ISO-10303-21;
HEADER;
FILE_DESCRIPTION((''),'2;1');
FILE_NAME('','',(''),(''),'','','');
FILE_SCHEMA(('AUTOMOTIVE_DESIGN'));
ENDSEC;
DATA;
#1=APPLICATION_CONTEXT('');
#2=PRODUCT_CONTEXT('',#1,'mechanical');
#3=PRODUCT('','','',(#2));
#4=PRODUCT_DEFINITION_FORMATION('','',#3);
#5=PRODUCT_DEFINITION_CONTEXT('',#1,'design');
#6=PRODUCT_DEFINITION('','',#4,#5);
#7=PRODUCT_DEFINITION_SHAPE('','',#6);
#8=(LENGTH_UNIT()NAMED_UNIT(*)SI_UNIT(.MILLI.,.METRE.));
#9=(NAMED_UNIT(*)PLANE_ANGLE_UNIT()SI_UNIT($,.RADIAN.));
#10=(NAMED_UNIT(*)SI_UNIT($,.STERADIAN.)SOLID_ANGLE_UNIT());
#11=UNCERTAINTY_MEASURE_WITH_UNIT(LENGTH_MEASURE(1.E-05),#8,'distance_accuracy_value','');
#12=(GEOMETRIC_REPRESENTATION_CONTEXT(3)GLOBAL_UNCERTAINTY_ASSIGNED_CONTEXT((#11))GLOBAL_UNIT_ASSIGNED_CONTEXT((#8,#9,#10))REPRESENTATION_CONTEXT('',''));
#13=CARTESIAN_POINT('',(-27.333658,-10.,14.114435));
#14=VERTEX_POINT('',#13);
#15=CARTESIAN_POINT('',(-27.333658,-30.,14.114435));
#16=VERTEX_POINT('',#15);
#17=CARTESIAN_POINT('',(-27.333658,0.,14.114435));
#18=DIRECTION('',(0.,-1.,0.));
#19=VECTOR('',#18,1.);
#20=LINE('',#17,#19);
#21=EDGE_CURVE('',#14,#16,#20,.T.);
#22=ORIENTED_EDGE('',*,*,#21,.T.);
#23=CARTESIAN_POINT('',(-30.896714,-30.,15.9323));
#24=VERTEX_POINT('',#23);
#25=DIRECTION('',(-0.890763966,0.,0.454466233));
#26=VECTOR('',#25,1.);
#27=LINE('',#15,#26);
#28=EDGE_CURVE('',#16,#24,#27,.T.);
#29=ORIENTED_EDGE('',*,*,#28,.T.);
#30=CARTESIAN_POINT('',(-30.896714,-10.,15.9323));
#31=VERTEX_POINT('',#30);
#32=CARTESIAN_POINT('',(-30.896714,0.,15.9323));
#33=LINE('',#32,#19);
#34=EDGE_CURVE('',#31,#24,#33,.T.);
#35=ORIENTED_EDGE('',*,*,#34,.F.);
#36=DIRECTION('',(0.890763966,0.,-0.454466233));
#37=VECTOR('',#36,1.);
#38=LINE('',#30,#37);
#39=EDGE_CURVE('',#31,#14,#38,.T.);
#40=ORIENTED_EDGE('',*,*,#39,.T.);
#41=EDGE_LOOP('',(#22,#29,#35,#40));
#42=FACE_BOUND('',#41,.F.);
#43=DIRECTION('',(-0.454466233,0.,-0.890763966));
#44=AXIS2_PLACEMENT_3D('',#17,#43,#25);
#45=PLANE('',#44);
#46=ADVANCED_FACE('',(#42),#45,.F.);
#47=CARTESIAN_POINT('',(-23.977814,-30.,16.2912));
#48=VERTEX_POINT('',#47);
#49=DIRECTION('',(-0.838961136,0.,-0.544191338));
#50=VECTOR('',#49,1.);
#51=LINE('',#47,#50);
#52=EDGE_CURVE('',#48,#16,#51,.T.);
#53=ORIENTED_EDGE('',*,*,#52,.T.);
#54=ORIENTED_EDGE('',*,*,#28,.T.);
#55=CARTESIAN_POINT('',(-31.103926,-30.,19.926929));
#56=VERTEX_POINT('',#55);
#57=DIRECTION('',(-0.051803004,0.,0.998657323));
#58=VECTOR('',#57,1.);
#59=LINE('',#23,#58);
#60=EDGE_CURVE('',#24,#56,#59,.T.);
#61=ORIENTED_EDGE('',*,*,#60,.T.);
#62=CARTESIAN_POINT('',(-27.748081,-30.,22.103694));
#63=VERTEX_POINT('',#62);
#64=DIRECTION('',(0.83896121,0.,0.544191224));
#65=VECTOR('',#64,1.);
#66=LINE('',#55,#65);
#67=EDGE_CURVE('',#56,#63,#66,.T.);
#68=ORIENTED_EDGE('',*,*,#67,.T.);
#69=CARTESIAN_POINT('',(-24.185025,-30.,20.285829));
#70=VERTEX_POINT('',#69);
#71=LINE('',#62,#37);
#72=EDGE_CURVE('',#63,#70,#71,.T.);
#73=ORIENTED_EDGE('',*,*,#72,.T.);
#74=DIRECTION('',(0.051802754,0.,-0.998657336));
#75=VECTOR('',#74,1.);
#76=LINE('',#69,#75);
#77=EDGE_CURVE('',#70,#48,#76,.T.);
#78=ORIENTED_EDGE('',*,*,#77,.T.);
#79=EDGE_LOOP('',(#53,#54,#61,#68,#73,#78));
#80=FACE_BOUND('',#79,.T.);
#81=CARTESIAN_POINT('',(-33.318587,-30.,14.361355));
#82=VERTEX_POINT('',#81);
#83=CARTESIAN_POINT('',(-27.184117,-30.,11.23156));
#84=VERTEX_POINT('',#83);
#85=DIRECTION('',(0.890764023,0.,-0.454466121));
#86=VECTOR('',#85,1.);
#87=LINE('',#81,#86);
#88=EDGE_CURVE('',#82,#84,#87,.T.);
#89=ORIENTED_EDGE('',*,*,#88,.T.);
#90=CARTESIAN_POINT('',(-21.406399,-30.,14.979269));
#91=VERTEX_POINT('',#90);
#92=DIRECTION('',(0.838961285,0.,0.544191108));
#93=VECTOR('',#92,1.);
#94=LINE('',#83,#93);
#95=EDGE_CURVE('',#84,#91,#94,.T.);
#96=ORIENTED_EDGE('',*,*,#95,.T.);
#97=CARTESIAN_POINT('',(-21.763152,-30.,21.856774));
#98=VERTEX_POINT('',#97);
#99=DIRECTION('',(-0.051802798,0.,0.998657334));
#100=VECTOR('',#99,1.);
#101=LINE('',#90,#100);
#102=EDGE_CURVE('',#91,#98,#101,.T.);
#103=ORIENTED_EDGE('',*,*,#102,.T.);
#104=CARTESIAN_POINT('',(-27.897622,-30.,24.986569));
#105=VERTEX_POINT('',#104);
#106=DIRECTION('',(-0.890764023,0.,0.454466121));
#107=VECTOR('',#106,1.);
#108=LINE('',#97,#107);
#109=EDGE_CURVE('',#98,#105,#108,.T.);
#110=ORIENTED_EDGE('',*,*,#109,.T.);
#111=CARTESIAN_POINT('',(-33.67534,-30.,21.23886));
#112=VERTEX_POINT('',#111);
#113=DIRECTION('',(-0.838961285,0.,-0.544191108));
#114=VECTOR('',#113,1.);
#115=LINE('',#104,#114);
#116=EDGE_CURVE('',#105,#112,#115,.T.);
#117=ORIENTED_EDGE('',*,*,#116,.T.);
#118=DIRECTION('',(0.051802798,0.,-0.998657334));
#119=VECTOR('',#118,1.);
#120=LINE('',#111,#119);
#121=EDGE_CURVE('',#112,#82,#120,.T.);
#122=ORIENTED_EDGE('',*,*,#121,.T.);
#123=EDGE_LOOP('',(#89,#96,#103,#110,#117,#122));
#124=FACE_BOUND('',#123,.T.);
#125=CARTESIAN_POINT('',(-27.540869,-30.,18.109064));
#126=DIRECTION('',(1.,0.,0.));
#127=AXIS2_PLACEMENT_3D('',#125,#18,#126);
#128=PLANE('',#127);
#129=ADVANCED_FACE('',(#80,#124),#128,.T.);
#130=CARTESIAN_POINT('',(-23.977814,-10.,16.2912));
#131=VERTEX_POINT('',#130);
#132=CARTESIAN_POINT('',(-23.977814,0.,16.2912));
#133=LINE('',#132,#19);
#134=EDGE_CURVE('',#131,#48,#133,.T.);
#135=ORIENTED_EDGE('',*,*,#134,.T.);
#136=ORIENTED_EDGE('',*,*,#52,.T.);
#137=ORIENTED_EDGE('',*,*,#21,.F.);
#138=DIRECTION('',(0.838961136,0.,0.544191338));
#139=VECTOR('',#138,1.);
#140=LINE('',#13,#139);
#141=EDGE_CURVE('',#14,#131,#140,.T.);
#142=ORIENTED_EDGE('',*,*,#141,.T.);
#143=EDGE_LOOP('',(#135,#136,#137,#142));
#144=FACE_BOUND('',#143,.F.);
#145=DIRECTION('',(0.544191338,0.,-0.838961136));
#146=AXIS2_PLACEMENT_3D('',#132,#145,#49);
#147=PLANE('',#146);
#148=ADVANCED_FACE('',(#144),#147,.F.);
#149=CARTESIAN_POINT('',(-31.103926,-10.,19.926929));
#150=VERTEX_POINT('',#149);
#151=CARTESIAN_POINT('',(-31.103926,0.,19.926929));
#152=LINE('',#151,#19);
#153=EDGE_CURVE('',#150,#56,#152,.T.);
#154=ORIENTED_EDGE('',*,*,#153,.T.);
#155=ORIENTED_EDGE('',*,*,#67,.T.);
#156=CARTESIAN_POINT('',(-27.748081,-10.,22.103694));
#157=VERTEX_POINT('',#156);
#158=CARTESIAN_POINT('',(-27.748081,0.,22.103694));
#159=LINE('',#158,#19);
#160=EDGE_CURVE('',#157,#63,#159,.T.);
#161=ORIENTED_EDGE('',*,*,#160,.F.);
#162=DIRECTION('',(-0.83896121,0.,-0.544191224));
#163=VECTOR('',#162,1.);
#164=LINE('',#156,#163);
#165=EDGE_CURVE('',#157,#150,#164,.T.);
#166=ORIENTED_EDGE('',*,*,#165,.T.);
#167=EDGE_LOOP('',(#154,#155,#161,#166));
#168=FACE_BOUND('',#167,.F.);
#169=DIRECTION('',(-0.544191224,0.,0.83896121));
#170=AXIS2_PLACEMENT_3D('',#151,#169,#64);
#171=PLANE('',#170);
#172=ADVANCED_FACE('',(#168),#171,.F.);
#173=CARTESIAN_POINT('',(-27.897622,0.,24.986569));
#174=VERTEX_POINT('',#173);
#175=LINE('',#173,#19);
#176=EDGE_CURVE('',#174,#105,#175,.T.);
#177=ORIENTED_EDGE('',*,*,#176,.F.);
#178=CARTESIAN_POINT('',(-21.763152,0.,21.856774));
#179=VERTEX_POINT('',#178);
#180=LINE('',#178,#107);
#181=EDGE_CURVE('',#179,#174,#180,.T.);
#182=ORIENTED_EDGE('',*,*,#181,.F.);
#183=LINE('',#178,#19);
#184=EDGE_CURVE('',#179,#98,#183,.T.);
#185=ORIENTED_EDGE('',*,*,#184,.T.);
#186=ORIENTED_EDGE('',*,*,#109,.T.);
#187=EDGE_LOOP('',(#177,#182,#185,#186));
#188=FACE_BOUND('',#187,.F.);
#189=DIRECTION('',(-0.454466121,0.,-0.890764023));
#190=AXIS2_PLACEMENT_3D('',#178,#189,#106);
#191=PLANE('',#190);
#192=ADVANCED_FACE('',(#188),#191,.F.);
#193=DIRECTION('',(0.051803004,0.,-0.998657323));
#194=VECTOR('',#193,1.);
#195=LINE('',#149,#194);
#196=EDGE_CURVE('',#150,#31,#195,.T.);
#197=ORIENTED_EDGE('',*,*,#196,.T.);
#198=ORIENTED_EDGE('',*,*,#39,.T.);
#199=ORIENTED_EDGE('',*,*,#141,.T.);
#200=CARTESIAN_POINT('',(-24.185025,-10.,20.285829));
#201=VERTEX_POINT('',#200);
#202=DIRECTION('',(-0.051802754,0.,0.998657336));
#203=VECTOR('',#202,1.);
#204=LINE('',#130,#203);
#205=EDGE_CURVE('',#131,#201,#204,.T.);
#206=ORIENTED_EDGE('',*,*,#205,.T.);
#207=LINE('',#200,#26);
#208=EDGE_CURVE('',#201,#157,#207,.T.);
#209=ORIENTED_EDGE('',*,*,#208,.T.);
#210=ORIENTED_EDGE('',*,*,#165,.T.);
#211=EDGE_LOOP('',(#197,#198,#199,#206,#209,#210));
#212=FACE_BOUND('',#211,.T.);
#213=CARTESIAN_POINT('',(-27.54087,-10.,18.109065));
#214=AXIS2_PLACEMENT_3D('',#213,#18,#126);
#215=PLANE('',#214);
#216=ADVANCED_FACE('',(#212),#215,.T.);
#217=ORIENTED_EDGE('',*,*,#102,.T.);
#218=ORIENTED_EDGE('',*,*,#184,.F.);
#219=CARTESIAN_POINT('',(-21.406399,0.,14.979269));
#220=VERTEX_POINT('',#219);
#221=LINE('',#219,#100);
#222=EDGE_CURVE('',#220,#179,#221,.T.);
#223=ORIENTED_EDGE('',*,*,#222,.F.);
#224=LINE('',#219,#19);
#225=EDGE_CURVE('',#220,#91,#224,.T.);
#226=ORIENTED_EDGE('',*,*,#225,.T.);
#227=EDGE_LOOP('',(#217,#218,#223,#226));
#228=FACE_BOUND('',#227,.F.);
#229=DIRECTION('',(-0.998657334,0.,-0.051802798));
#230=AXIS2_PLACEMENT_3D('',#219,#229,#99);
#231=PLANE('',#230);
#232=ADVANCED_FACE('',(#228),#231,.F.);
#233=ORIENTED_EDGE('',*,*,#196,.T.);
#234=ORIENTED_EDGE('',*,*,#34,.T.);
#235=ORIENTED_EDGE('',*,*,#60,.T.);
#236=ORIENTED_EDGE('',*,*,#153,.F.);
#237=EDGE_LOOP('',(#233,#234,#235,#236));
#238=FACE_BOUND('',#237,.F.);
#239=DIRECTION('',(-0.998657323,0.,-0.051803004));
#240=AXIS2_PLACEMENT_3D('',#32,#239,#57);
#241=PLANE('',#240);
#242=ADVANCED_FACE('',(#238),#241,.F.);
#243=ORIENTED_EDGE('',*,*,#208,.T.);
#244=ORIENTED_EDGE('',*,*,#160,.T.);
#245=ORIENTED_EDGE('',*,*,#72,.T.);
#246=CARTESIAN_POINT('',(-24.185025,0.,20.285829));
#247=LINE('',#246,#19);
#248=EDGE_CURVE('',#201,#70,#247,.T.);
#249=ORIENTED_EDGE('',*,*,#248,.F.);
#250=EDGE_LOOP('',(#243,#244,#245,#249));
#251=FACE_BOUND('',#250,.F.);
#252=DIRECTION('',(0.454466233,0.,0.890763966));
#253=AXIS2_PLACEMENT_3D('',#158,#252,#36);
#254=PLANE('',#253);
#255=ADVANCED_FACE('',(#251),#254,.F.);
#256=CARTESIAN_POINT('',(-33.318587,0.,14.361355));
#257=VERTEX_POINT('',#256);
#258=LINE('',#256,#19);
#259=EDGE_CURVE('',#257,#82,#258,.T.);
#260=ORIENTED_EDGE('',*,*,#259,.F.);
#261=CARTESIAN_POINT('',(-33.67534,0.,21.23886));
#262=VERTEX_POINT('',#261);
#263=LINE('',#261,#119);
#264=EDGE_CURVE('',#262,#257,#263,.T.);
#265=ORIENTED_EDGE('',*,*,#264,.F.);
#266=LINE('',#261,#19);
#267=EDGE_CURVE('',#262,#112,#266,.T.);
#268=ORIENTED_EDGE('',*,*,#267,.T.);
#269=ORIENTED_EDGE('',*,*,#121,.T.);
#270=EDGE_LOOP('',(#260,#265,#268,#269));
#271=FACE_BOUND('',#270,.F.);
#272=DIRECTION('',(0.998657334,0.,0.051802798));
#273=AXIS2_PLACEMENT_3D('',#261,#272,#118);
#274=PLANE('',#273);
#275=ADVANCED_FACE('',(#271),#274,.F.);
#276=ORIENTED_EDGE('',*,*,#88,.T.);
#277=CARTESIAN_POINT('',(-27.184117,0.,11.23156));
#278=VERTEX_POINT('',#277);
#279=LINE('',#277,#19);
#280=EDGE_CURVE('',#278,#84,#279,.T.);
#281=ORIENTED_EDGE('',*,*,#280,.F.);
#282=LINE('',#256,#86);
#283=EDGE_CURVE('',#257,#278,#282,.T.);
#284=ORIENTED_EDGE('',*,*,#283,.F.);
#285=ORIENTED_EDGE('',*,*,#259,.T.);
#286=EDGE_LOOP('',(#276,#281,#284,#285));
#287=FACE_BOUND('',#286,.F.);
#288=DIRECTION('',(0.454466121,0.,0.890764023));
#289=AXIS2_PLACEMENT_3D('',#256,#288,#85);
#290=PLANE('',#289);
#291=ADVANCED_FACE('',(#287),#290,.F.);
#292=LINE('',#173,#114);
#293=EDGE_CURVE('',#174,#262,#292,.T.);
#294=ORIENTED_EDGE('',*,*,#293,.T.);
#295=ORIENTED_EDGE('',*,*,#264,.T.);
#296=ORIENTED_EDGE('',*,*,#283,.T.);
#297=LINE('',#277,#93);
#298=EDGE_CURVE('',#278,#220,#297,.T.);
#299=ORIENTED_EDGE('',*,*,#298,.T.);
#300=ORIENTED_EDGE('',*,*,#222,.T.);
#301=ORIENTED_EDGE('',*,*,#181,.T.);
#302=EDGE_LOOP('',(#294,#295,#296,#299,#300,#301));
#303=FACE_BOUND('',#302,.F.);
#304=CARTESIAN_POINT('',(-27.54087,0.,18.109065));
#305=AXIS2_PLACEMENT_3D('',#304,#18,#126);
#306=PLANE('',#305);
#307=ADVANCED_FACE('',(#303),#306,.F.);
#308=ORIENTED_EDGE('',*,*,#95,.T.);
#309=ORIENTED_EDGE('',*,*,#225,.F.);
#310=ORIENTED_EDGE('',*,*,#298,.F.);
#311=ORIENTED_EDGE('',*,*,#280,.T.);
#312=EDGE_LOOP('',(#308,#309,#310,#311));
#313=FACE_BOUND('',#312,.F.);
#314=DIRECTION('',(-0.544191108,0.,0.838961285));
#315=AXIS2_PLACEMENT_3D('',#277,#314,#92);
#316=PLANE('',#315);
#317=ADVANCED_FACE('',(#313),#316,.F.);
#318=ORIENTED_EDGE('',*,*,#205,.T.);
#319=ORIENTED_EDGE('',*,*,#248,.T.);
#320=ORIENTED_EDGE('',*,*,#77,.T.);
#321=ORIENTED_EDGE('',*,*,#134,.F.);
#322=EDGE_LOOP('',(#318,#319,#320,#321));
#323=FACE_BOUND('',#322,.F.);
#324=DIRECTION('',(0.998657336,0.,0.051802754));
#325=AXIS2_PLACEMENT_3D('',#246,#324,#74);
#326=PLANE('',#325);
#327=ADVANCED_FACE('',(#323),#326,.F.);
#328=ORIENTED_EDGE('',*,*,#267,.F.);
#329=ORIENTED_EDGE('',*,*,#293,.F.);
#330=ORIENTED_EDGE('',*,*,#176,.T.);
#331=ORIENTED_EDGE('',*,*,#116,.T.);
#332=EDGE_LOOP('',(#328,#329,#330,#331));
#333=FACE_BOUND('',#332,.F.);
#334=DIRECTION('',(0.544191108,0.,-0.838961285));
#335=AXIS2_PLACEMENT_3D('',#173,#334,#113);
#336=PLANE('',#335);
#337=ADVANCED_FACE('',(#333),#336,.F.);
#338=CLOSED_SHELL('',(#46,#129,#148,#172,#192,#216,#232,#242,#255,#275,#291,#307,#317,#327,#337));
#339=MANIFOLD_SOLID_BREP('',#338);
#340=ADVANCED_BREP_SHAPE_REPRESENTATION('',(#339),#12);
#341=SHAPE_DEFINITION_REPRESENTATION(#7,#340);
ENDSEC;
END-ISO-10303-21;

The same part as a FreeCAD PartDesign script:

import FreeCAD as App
import Part
import Sketcher
from FreeCAD import Vector
Q = App.Units.Quantity

doc = App.newDocument("Part")
params = doc.addObject("Spreadsheet::Sheet", "Params")
for row, (alias, value) in enumerate([
    ("sketch1_length", "4 mm"),
    ("sketch1_length2", "4 mm"),
    ("sketch1_length3", "3.999999 mm"),
    ("sketch1_length4", "4 mm"),
    ("sketch1_length5", "4 mm"),
    ("pad1_length", "30 mm"),
    ("sketch2_length", "3.999999 mm"),
    ("pad2_length", "10 mm"),
], start=1):
    params.set(f"A{row}", alias)
    params.set(f"B{row}", "=" + value)
    params.setAlias(f"B{row}", alias)

body = doc.addObject("PartDesign::Body", "Body")

# Sketch on XZ plane
sketch1 = doc.addObject("Sketcher::SketchObject", "Sketch")
body.addObject(sketch1)
sketch1.AttachmentSupport = (doc.XZ_Plane, [""])
sketch1.MapMode = "FlatFace"
sketch1.addGeometry(Part.LineSegment(Vector(-27.897622, 24.986569, 0), Vector(-33.67534, 21.23886, 0)), False)
sketch1.addGeometry(Part.LineSegment(Vector(-33.67534, 21.23886, 0), Vector(-33.318587, 14.361355, 0)), False)
sketch1.addGeometry(Part.LineSegment(Vector(-33.318587, 14.361355, 0), Vector(-27.184117, 11.23156, 0)), False)
sketch1.addGeometry(Part.LineSegment(Vector(-27.184117, 11.23156, 0), Vector(-21.406399, 14.979269, 0)), False)
sketch1.addGeometry(Part.LineSegment(Vector(-21.406399, 14.979269, 0), Vector(-21.763152, 21.856774, 0)), False)
sketch1.addGeometry(Part.LineSegment(Vector(-21.763152, 21.856774, 0), Vector(-27.897622, 24.986569, 0)), False)
sketch1.addGeometry(Part.LineSegment(Vector(-27.748081, 22.103694, 0), Vector(-24.185025, 20.285829, 0)), False)
sketch1.addGeometry(Part.LineSegment(Vector(-24.185025, 20.285829, 0), Vector(-23.977814, 16.2912, 0)), False)
sketch1.addGeometry(Part.LineSegment(Vector(-23.977814, 16.2912, 0), Vector(-27.333658, 14.114435, 0)), False)
sketch1.addGeometry(Part.LineSegment(Vector(-27.333658, 14.114435, 0), Vector(-30.896714, 15.9323, 0)), False)
sketch1.addGeometry(Part.LineSegment(Vector(-30.896714, 15.9323, 0), Vector(-31.103926, 19.926929, 0)), False)
sketch1.addGeometry(Part.LineSegment(Vector(-31.103926, 19.926929, 0), Vector(-27.748081, 22.103694, 0)), False)
sketch1.addConstraint(Sketcher.Constraint("Coincident", 0, 2, 1, 1))
sketch1.addConstraint(Sketcher.Constraint("Coincident", 1, 2, 2, 1))
sketch1.addConstraint(Sketcher.Constraint("Coincident", 2, 2, 3, 1))
sketch1.addConstraint(Sketcher.Constraint("Coincident", 3, 2, 4, 1))
sketch1.addConstraint(Sketcher.Constraint("Coincident", 4, 2, 5, 1))
sketch1.addConstraint(Sketcher.Constraint("Coincident", 5, 2, 0, 1))
sketch1.addConstraint(Sketcher.Constraint("Coincident", 6, 2, 7, 1))
sketch1.addConstraint(Sketcher.Constraint("Coincident", 7, 2, 8, 1))
sketch1.addConstraint(Sketcher.Constraint("Coincident", 8, 2, 9, 1))
sketch1.addConstraint(Sketcher.Constraint("Coincident", 9, 2, 10, 1))
sketch1.addConstraint(Sketcher.Constraint("Coincident", 10, 2, 11, 1))
sketch1.addConstraint(Sketcher.Constraint("Coincident", 11, 2, 6, 1))
sketch1.addConstraint(Sketcher.Constraint("Distance", 6, Q("4 mm")))
sketch1.addConstraint(Sketcher.Constraint("Distance", 7, Q("4 mm")))
sketch1.addConstraint(Sketcher.Constraint("Distance", 8, Q("3.999999 mm")))
sketch1.addConstraint(Sketcher.Constraint("Distance", 9, Q("4 mm")))
sketch1.addConstraint(Sketcher.Constraint("Distance", 10, Q("4 mm")))
sketch1.addConstraint(Sketcher.Constraint("Distance", 11, Q("4 mm")))
sketch1.addConstraint(Sketcher.Constraint("DistanceX", 3, 2, -1, 1, Q("21.406399 mm")))
sketch1.addConstraint(Sketcher.Constraint("DistanceY", -1, 1, 7, 2, Q("16.2912 mm")))
sketch1.addConstraint(Sketcher.Constraint("DistanceY", -1, 1, 9, 2, Q("15.9323 mm")))
sketch1.addConstraint(Sketcher.Constraint("DistanceY", 2, 2, 0, 2, Q("10.0073 mm")))
sketch1.addConstraint(Sketcher.Constraint("DistanceY", 3, 2, 5, 2, Q("10.0073 mm")))
sketch1.addConstraint(Sketcher.Constraint("DistanceX", 9, 2, 7, 2, Q("6.9189 mm")))
sketch1.addConstraint(Sketcher.Constraint("DistanceX", 10, 2, 6, 2, Q("6.918901 mm")))
sketch1.addConstraint(Sketcher.Constraint("Distance", 0, Q("6.886752 mm")))
sketch1.addConstraint(Sketcher.Constraint("Distance", 1, Q("6.886752 mm")))
sketch1.addConstraint(Sketcher.Constraint("Distance", 2, Q("6.886751 mm")))
sketch1.addConstraint(Sketcher.Constraint("Distance", 3, Q("6.886752 mm")))
sketch1.addConstraint(Sketcher.Constraint("Distance", 4, Q("6.886752 mm")))
sketch1.addConstraint(Sketcher.Constraint("Distance", 5, Q("6.886751 mm")))
sketch1.addConstraint(Sketcher.Constraint("DistanceX", 0, 2, -1, 1, Q("33.67534 mm")))
sketch1.addConstraint(Sketcher.Constraint("DistanceY", -1, 1, 0, 2, Q("21.23886 mm")))
sketch1.addConstraint(Sketcher.Constraint("DistanceY", -1, 1, 3, 2, Q("14.979269 mm")))
sketch1.addConstraint(Sketcher.Constraint("DistanceY", -1, 1, 6, 2, Q("20.285829 mm")))
sketch1.addConstraint(Sketcher.Constraint("DistanceX", 8, 2, -1, 1, Q("27.333658 mm")))
sketch1.setExpression("Constraints[12]", "Params.sketch1_length")
sketch1.setExpression("Constraints[13]", "Params.sketch1_length2")
sketch1.setExpression("Constraints[14]", "Params.sketch1_length3")
sketch1.setExpression("Constraints[15]", "Params.sketch1_length4")
sketch1.setExpression("Constraints[16]", "Params.sketch1_length5")
pad1 = doc.addObject("PartDesign::Pad", "Pad")
body.addObject(pad1)
pad1.Profile = sketch1
pad1.setExpression("Length", "Params.pad1_length")

# Sketch on XZ plane
sketch2 = doc.addObject("Sketcher::SketchObject", "Sketch001")
body.addObject(sketch2)
sketch2.AttachmentSupport = (doc.XZ_Plane, [""])
sketch2.MapMode = "FlatFace"
sketch2.addGeometry(Part.LineSegment(Vector(-27.333658, 14.114435, 0), Vector(-23.977814, 16.2912, 0)), False)
sketch2.addGeometry(Part.LineSegment(Vector(-23.977814, 16.2912, 0), Vector(-24.185025, 20.285829, 0)), False)
sketch2.addGeometry(Part.LineSegment(Vector(-24.185025, 20.285829, 0), Vector(-27.748081, 22.103694, 0)), False)
sketch2.addGeometry(Part.LineSegment(Vector(-27.748081, 22.103694, 0), Vector(-31.103926, 19.926929, 0)), False)
sketch2.addGeometry(Part.LineSegment(Vector(-31.103926, 19.926929, 0), Vector(-30.896714, 15.9323, 0)), False)
sketch2.addGeometry(Part.LineSegment(Vector(-30.896714, 15.9323, 0), Vector(-27.333658, 14.114435, 0)), False)
sketch2.addConstraint(Sketcher.Constraint("Coincident", 0, 2, 1, 1))
sketch2.addConstraint(Sketcher.Constraint("Coincident", 1, 2, 2, 1))
sketch2.addConstraint(Sketcher.Constraint("Coincident", 2, 2, 3, 1))
sketch2.addConstraint(Sketcher.Constraint("Coincident", 3, 2, 4, 1))
sketch2.addConstraint(Sketcher.Constraint("Coincident", 4, 2, 5, 1))
sketch2.addConstraint(Sketcher.Constraint("Coincident", 5, 2, 0, 1))
sketch2.addConstraint(Sketcher.Constraint("Parallel", 0, 3))
sketch2.addConstraint(Sketcher.Constraint("Parallel", 1, 4))
sketch2.addConstraint(Sketcher.Constraint("Parallel", 2, 5))
sketch2.addConstraint(Sketcher.Constraint("Equal", 0, 1))
sketch2.addConstraint(Sketcher.Constraint("Equal", 1, 2))
sketch2.addConstraint(Sketcher.Constraint("Equal", 2, 3))
sketch2.addConstraint(Sketcher.Constraint("Distance", 0, Q("3.999999 mm")))
sketch2.addConstraint(Sketcher.Constraint("DistanceY", -1, 1, 0, 2, Q("16.2912 mm")))
sketch2.addConstraint(Sketcher.Constraint("DistanceY", -1, 1, 4, 2, Q("15.9323 mm")))
sketch2.addConstraint(Sketcher.Constraint("DistanceX", 3, 2, 1, 2, Q("6.918901 mm")))
sketch2.addConstraint(Sketcher.Constraint("DistanceY", -1, 1, 1, 2, Q("20.285829 mm")))
sketch2.addConstraint(Sketcher.Constraint("DistanceX", 2, 2, -1, 1, Q("27.748081 mm")))
sketch2.setExpression("Constraints[12]", "Params.sketch2_length")
pad2 = doc.addObject("PartDesign::Pad", "Pad001")
body.addObject(pad2)
pad2.Profile = sketch2
pad2.setExpression("Length", "Params.pad2_length")

doc.recompute()
